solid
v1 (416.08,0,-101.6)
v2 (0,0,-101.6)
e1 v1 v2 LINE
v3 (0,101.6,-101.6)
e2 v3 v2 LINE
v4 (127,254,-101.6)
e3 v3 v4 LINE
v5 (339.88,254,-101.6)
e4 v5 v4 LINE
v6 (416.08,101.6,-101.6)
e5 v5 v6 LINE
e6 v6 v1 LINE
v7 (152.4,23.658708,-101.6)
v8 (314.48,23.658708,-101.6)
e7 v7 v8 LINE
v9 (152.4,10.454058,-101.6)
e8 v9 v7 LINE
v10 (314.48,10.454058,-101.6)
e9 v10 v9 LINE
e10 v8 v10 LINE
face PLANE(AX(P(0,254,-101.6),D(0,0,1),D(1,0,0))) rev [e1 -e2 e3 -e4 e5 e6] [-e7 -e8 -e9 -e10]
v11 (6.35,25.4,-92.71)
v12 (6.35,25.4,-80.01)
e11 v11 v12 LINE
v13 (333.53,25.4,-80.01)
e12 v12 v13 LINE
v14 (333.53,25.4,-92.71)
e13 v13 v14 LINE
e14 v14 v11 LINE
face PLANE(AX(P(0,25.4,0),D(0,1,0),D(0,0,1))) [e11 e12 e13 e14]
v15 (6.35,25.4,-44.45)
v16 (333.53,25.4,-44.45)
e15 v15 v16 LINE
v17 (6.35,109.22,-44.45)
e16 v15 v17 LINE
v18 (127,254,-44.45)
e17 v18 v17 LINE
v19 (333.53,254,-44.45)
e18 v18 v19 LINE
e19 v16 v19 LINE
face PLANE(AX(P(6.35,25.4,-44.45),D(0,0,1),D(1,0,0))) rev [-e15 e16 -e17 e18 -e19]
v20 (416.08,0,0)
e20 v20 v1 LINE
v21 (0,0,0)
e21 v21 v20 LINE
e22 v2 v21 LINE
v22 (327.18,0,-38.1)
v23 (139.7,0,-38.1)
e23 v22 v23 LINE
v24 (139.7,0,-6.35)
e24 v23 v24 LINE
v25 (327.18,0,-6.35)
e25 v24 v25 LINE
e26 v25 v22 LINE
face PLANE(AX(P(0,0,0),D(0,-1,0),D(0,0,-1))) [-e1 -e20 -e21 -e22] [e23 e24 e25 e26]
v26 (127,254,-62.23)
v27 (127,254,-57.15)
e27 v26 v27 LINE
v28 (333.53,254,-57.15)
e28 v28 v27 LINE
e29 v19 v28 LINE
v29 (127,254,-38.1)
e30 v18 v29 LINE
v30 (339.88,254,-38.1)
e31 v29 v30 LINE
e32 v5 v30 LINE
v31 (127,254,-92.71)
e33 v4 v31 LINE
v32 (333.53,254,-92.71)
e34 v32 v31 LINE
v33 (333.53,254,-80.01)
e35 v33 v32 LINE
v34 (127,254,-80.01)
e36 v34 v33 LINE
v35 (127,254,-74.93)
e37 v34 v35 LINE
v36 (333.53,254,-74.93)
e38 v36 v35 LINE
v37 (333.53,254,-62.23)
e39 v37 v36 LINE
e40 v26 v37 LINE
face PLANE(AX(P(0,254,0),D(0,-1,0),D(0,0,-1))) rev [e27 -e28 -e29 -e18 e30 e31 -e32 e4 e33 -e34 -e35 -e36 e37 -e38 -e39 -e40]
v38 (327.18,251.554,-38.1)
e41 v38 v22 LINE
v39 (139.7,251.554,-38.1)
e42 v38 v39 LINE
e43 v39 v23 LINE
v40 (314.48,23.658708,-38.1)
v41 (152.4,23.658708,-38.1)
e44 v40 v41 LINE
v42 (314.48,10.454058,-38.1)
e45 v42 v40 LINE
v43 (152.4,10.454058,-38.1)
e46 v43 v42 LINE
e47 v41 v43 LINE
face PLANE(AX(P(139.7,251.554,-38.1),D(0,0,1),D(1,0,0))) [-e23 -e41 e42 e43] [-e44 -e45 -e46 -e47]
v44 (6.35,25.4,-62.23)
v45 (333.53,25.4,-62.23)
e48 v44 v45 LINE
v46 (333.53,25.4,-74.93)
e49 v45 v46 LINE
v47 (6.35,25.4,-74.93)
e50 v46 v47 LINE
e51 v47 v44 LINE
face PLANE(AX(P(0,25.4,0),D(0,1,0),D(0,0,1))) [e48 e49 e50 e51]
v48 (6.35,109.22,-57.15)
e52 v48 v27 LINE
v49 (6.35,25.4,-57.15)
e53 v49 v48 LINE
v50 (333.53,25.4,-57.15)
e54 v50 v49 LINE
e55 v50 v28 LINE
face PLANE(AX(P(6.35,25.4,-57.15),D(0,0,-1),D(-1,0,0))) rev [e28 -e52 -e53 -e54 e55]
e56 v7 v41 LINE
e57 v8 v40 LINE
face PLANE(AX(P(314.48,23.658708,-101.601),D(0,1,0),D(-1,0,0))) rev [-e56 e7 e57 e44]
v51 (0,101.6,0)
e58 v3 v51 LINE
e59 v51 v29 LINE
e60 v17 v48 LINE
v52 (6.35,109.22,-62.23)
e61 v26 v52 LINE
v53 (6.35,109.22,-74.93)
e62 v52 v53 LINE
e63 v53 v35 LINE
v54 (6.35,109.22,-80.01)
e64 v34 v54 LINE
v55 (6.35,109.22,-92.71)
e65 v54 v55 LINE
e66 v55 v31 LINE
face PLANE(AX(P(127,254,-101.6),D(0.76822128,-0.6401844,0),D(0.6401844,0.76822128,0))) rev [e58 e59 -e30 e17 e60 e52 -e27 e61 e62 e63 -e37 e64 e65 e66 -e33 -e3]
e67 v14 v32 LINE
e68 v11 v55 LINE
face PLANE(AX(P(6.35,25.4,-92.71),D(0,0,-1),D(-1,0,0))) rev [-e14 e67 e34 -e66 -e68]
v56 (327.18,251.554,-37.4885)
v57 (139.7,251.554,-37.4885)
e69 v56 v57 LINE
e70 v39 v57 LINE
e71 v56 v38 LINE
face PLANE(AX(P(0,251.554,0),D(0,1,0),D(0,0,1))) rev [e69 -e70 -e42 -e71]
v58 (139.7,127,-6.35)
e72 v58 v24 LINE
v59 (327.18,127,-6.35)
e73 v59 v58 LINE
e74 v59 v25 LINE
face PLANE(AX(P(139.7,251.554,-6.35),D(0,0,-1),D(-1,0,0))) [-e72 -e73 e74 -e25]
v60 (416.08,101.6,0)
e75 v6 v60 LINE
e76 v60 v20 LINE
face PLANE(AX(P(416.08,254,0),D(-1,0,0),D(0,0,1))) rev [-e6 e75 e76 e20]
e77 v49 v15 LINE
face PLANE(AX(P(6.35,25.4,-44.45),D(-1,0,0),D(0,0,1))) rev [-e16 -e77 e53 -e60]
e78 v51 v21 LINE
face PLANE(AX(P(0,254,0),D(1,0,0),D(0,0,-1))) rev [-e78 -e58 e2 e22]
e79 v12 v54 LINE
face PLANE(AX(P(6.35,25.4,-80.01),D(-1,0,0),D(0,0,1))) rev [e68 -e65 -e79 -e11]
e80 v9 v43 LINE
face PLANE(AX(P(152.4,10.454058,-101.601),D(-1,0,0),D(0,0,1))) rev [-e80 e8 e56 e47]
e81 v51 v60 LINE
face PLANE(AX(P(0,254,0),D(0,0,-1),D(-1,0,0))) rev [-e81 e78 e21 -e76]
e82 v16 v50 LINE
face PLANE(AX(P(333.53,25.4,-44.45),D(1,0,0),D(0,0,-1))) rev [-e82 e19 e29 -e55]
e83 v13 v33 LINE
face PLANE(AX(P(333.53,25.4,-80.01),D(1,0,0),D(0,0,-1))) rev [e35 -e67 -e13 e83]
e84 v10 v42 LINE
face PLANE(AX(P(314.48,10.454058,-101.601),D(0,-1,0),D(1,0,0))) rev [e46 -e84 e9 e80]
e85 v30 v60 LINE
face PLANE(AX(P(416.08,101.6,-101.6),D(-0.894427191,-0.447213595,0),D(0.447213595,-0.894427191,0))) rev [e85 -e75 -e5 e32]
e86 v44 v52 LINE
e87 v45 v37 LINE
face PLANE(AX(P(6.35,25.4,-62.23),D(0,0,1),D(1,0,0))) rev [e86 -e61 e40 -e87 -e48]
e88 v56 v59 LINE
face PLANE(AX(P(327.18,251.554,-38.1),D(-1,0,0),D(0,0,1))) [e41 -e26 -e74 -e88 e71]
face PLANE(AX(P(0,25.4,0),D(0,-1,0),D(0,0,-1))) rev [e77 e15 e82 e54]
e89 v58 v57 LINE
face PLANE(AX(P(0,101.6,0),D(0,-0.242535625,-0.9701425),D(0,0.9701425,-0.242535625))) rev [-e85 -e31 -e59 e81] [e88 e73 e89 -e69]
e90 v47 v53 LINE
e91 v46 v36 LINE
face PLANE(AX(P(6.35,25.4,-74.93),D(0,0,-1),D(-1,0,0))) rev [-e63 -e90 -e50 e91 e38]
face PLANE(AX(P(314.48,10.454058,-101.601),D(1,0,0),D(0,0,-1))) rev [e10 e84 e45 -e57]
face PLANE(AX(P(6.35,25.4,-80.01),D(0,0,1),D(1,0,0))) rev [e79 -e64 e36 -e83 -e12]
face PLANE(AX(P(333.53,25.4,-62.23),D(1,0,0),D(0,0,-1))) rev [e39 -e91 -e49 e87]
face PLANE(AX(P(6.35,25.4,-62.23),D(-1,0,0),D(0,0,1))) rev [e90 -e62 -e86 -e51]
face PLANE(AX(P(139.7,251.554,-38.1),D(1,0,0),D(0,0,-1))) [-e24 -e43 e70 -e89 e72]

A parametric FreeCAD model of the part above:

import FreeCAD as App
import Part
import Sketcher
from FreeCAD import Vector
Q = App.Units.Quantity


def add_polygon(sketch, points):
    """Adds a closed chain of lines whose ends are joined by coincident constraints."""
    first, n = sketch.GeometryCount, len(points)
    for a, b in zip(points, points[1:] + points[:1]):
        sketch.addGeometry(Part.LineSegment(App.Vector(*a, 0), App.Vector(*b, 0)), False)
    for i in range(n):
        sketch.addConstraint(Sketcher.Constraint("Coincident", first + i, 2, first + (i + 1) % n, 1))

doc = App.newDocument("Part")
params = doc.addObject("Spreadsheet::Sheet", "Params")
for row, (alias, value) in enumerate([
    ("sketch1_height", "4 in"),
    ("pad1_length", "10 in"),
    ("sketch2_width", "5 in"),
    ("sketch2_width2", "3 in"),
    ("sketch2_height", "6 in"),
    ("pocket1_length", "4 in"),
    ("sketch3_height", "1.25 in"),
    ("pocket2_length", "251.554 mm"),
    ("sketch4_height", "0.5 in"),
    ("pocket3_length", "9 in"),
    ("sketch5_width", "6 in"),
    ("sketch5_height", "1.5 in"),
], start=1):
    params.set(f"A{row}", alias)
    params.set(f"B{row}", "=" + value)
    params.setAlias(f"B{row}", alias)

body = doc.addObject("PartDesign::Body", "Body")

# Sketch on XZ plane
sketch1 = doc.addObject("Sketcher::SketchObject", "Sketch")
body.addObject(sketch1)
sketch1.AttachmentSupport = (doc.XZ_Plane, [""])
sketch1.MapMode = "FlatFace"
add_polygon(sketch1, [(0, -101.6), (0, 0), (416.08, 0), (416.08, -101.6)])  # lines 0-3
sketch1.addConstraint([
    Sketcher.Constraint("Vertical", 0),
    Sketcher.Constraint("Horizontal", 1),
    Sketcher.Constraint("Vertical", 2),
    Sketcher.Constraint("Horizontal", 3),
    Sketcher.Constraint("Coincident", 0, 2, -1, 1),
    Sketcher.Constraint("DistanceY", 0, 1, 0, 2, Q("4 in")),
    Sketcher.Constraint("DistanceX", 1, 1, 1, 2, 416.08),
])
sketch1.setExpression("Constraints[9]", "Params.sketch1_height")
pad1 = doc.addObject("PartDesign::Pad", "Pad")
body.addObject(pad1)
pad1.Profile = sketch1
pad1.setExpression("Length", "Params.pad1_length")
pad1.Reversed = True

# Sketch on XY plane
sketch2 = doc.addObject("Sketcher::SketchObject", "Sketch001")
body.addObject(sketch2)
sketch2.AttachmentSupport = (doc.XY_Plane, [""])
sketch2.MapMode = "FlatFace"
add_polygon(sketch2, [(0, 254), (0, 101.6), (127, 254)])  # lines 0-2
add_polygon(sketch2, [(416.08, 101.6), (416.08, 254), (339.88, 254)])  # lines 3-5
sketch2.addConstraint([
    Sketcher.Constraint("Vertical", 0),
    Sketcher.Constraint("Horizontal", 2),
    Sketcher.Constraint("Vertical", 3),
    Sketcher.Constraint("Horizontal", 4),
    Sketcher.Constraint("PointOnObject", 0, 2, -2),
    Sketcher.Constraint("Horizontal", 2, 2, 3, 2),
    Sketcher.Constraint("Horizontal", 0, 2, 5, 2),
    Sketcher.Constraint("DistanceX", 2, 2, 2, 1, Q("5 in")),
    Sketcher.Constraint("DistanceX", 4, 2, 4, 1, Q("3 in")),
    Sketcher.Constraint("DistanceY", 0, 2, 0, 1, Q("6 in")),
    Sketcher.Constraint("DistanceY", -1, 1, 0, 2, Q("4 in")),
    Sketcher.Constraint("DistanceX", -1, 1, 3, 2, 416.08),
])
sketch2.setExpression("Constraints[13]", "Params.sketch2_width")
sketch2.setExpression("Constraints[14]", "Params.sketch2_width2")
sketch2.setExpression("Constraints[15]", "Params.sketch2_height")
pocket1 = doc.addObject("PartDesign::Pocket", "Pocket")
body.addObject(pocket1)
pocket1.Profile = sketch2
pocket1.setExpression("Length", "Params.pocket1_length")

# Sketch on XZ plane
sketch3 = doc.addObject("Sketcher::SketchObject", "Sketch002")
body.addObject(sketch3)
sketch3.AttachmentSupport = (doc.XZ_Plane, [""])
sketch3.MapMode = "FlatFace"
add_polygon(sketch3, [(139.7, -38.1), (139.7, -6.35), (327.18, -6.35), (327.18, -38.1)])  # lines 0-3
sketch3.addConstraint([
    Sketcher.Constraint("Vertical", 0),
    Sketcher.Constraint("Horizontal", 1),
    Sketcher.Constraint("Vertical", 2),
    Sketcher.Constraint("Horizontal", 3),
    Sketcher.Constraint("DistanceY", 0, 1, 0, 2, Q("1.25 in")),
    Sketcher.Constraint("DistanceX", -1, 1, 0, 2, Q("5.5 in")),
    Sketcher.Constraint("DistanceY", 2, 2, -1, 1, Q("1.5 in")),
    Sketcher.Constraint("DistanceX", 1, 1, 1, 2, 187.48),
])
sketch3.setExpression("Constraints[8]", "Params.sketch3_height")
pocket2 = doc.addObject("PartDesign::Pocket", "Pocket001")
body.addObject(pocket2)
pocket2.Profile = sketch3
pocket2.setExpression("Length", "Params.pocket2_length")

# Sketch on XZ plane
sketch4 = doc.addObject("Sketcher::SketchObject", "Sketch003")
body.addObject(sketch4)
sketch4.AttachmentSupport = (doc.XZ_Plane, [""])
sketch4.MapMode = "FlatFace"
sketch4.AttachmentOffset = App.Placement(Vector(0, 0, -10 * 25.4), App.Rotation())
add_polygon(sketch4, [(6.35, -57.15), (6.35, -44.45), (333.53, -44.45), (333.53, -57.15)])  # lines 0-3
add_polygon(sketch4, [(6.35, -74.93), (6.35, -62.23), (333.53, -62.23), (333.53, -74.93)])  # lines 4-7
add_polygon(sketch4, [(6.35, -92.71), (6.35, -80.01), (333.53, -80.01), (333.53, -92.71)])  # lines 8-11
sketch4.addConstraint([
    Sketcher.Constraint("Vertical", 0),
    Sketcher.Constraint("Horizontal", 1),
    Sketcher.Constraint("Vertical", 2),
    Sketcher.Constraint("Horizontal", 3),
    Sketcher.Constraint("Vertical", 4),
    Sketcher.Constraint("Horizontal", 5),
    Sketcher.Constraint("Vertical", 6),
    Sketcher.Constraint("Horizontal", 7),
    Sketcher.Constraint("Vertical", 8),
    Sketcher.Constraint("Horizontal", 9),
    Sketcher.Constraint("Vertical", 10),
    Sketcher.Constraint("Horizontal", 11),
    Sketcher.Constraint("Vertical", 3, 2, 4, 2),
    Sketcher.Constraint("Vertical", 2, 2, 5, 2),
    Sketcher.Constraint("Vertical", 7, 2, 8, 2),
    Sketcher.Constraint("Vertical", 6, 2, 9, 2),
    Sketcher.Constraint("Equal", 2, 4),
    Sketcher.Constraint("Equal", 6, 8),
    Sketcher.Constraint("DistanceY", 0, 1, 0, 2, Q("0.5 in")),
    Sketcher.Constraint("DistanceY", 4, 2, 3, 2, Q("0.2 in")),
    Sketcher.Constraint("DistanceY", 8, 2, 7, 2, Q("0.2 in")),
    Sketcher.Constraint("DistanceX", -1, 1, 0, 2, Q("0.25 in")),
    Sketcher.Constraint("DistanceY", 0, 2, -1, 1, Q("1.75 in")),
    Sketcher.Constraint("DistanceX", 1, 1, 1, 2, 327.18),
])
sketch4.setExpression("Constraints[30]", "Params.sketch4_height")
pocket3 = doc.addObject("PartDesign::Pocket", "Pocket002")
body.addObject(pocket3)
pocket3.Profile = sketch4
pocket3.setExpression("Length", "Params.pocket3_length")
pocket3.Reversed = True

# Sketch on YZ plane
sketch5 = doc.addObject("Sketcher::SketchObject", "Sketch004")
body.addObject(sketch5)
sketch5.AttachmentSupport = (doc.YZ_Plane, [""])
sketch5.MapMode = "FlatFace"
sketch5.AttachmentOffset = App.Placement(Vector(0, 0, 416.08), App.Rotation())
add_polygon(sketch5, [(254, 0), (101.6, 0), (254, -38.1)])  # lines 0-2
sketch5.addConstraint([
    Sketcher.Constraint("Horizontal", 0),
    Sketcher.Constraint("Vertical", 2),
    Sketcher.Constraint("PointOnObject", 0, 2, -1),
    Sketcher.Constraint("DistanceX", 0, 2, 0, 1, Q("6 in")),
    Sketcher.Constraint("DistanceY", 2, 1, 2, 2, Q("1.5 in")),
    Sketcher.Constraint("DistanceX", -1, 1, 0, 2, Q("4 in")),
])
sketch5.setExpression("Constraints[6]", "Params.sketch5_width")
sketch5.setExpression("Constraints[7]", "Params.sketch5_height")
pocket4 = doc.addObject("PartDesign::Pocket", "Pocket003")
body.addObject(pocket4)
pocket4.Profile = sketch5
pocket4.Type = "ThroughAll"

# Sketch on XY plane
sketch6 = doc.addObject("Sketcher::SketchObject", "Sketch005")
body.addObject(sketch6)
sketch6.AttachmentSupport = (doc.XY_Plane, [""])
sketch6.MapMode = "FlatFace"
sketch6.AttachmentOffset = App.Placement(Vector(0, 0, -1.5 * 25.4), App.Rotation())
add_polygon(sketch6, [(152.4, 23.658708), (152.4, 10.454058), (314.48, 10.454058), (314.48, 23.658708)])  # lines 0-3
sketch6.addConstraint([
    Sketcher.Constraint("Vertical", 0),
    Sketcher.Constraint("Horizontal", 1),
    Sketcher.Constraint("Vertical", 2),
    Sketcher.Constraint("Horizontal", 3),
    Sketcher.Constraint("DistanceX", -1, 1, 0, 2, Q("6 in")),
    Sketcher.Constraint("DistanceX", 1, 1, 1, 2, 162.08),
    Sketcher.Constraint("DistanceY", 0, 2, 0, 1, 13.204649),
    Sketcher.Constraint("DistanceY", -1, 1, 0, 2, 10.454058),
])
pocket5 = doc.addObject("PartDesign::Pocket", "Pocket004")
body.addObject(pocket5)
pocket5.Profile = sketch6
pocket5.Type = "UpToFirst"

doc.recompute()
